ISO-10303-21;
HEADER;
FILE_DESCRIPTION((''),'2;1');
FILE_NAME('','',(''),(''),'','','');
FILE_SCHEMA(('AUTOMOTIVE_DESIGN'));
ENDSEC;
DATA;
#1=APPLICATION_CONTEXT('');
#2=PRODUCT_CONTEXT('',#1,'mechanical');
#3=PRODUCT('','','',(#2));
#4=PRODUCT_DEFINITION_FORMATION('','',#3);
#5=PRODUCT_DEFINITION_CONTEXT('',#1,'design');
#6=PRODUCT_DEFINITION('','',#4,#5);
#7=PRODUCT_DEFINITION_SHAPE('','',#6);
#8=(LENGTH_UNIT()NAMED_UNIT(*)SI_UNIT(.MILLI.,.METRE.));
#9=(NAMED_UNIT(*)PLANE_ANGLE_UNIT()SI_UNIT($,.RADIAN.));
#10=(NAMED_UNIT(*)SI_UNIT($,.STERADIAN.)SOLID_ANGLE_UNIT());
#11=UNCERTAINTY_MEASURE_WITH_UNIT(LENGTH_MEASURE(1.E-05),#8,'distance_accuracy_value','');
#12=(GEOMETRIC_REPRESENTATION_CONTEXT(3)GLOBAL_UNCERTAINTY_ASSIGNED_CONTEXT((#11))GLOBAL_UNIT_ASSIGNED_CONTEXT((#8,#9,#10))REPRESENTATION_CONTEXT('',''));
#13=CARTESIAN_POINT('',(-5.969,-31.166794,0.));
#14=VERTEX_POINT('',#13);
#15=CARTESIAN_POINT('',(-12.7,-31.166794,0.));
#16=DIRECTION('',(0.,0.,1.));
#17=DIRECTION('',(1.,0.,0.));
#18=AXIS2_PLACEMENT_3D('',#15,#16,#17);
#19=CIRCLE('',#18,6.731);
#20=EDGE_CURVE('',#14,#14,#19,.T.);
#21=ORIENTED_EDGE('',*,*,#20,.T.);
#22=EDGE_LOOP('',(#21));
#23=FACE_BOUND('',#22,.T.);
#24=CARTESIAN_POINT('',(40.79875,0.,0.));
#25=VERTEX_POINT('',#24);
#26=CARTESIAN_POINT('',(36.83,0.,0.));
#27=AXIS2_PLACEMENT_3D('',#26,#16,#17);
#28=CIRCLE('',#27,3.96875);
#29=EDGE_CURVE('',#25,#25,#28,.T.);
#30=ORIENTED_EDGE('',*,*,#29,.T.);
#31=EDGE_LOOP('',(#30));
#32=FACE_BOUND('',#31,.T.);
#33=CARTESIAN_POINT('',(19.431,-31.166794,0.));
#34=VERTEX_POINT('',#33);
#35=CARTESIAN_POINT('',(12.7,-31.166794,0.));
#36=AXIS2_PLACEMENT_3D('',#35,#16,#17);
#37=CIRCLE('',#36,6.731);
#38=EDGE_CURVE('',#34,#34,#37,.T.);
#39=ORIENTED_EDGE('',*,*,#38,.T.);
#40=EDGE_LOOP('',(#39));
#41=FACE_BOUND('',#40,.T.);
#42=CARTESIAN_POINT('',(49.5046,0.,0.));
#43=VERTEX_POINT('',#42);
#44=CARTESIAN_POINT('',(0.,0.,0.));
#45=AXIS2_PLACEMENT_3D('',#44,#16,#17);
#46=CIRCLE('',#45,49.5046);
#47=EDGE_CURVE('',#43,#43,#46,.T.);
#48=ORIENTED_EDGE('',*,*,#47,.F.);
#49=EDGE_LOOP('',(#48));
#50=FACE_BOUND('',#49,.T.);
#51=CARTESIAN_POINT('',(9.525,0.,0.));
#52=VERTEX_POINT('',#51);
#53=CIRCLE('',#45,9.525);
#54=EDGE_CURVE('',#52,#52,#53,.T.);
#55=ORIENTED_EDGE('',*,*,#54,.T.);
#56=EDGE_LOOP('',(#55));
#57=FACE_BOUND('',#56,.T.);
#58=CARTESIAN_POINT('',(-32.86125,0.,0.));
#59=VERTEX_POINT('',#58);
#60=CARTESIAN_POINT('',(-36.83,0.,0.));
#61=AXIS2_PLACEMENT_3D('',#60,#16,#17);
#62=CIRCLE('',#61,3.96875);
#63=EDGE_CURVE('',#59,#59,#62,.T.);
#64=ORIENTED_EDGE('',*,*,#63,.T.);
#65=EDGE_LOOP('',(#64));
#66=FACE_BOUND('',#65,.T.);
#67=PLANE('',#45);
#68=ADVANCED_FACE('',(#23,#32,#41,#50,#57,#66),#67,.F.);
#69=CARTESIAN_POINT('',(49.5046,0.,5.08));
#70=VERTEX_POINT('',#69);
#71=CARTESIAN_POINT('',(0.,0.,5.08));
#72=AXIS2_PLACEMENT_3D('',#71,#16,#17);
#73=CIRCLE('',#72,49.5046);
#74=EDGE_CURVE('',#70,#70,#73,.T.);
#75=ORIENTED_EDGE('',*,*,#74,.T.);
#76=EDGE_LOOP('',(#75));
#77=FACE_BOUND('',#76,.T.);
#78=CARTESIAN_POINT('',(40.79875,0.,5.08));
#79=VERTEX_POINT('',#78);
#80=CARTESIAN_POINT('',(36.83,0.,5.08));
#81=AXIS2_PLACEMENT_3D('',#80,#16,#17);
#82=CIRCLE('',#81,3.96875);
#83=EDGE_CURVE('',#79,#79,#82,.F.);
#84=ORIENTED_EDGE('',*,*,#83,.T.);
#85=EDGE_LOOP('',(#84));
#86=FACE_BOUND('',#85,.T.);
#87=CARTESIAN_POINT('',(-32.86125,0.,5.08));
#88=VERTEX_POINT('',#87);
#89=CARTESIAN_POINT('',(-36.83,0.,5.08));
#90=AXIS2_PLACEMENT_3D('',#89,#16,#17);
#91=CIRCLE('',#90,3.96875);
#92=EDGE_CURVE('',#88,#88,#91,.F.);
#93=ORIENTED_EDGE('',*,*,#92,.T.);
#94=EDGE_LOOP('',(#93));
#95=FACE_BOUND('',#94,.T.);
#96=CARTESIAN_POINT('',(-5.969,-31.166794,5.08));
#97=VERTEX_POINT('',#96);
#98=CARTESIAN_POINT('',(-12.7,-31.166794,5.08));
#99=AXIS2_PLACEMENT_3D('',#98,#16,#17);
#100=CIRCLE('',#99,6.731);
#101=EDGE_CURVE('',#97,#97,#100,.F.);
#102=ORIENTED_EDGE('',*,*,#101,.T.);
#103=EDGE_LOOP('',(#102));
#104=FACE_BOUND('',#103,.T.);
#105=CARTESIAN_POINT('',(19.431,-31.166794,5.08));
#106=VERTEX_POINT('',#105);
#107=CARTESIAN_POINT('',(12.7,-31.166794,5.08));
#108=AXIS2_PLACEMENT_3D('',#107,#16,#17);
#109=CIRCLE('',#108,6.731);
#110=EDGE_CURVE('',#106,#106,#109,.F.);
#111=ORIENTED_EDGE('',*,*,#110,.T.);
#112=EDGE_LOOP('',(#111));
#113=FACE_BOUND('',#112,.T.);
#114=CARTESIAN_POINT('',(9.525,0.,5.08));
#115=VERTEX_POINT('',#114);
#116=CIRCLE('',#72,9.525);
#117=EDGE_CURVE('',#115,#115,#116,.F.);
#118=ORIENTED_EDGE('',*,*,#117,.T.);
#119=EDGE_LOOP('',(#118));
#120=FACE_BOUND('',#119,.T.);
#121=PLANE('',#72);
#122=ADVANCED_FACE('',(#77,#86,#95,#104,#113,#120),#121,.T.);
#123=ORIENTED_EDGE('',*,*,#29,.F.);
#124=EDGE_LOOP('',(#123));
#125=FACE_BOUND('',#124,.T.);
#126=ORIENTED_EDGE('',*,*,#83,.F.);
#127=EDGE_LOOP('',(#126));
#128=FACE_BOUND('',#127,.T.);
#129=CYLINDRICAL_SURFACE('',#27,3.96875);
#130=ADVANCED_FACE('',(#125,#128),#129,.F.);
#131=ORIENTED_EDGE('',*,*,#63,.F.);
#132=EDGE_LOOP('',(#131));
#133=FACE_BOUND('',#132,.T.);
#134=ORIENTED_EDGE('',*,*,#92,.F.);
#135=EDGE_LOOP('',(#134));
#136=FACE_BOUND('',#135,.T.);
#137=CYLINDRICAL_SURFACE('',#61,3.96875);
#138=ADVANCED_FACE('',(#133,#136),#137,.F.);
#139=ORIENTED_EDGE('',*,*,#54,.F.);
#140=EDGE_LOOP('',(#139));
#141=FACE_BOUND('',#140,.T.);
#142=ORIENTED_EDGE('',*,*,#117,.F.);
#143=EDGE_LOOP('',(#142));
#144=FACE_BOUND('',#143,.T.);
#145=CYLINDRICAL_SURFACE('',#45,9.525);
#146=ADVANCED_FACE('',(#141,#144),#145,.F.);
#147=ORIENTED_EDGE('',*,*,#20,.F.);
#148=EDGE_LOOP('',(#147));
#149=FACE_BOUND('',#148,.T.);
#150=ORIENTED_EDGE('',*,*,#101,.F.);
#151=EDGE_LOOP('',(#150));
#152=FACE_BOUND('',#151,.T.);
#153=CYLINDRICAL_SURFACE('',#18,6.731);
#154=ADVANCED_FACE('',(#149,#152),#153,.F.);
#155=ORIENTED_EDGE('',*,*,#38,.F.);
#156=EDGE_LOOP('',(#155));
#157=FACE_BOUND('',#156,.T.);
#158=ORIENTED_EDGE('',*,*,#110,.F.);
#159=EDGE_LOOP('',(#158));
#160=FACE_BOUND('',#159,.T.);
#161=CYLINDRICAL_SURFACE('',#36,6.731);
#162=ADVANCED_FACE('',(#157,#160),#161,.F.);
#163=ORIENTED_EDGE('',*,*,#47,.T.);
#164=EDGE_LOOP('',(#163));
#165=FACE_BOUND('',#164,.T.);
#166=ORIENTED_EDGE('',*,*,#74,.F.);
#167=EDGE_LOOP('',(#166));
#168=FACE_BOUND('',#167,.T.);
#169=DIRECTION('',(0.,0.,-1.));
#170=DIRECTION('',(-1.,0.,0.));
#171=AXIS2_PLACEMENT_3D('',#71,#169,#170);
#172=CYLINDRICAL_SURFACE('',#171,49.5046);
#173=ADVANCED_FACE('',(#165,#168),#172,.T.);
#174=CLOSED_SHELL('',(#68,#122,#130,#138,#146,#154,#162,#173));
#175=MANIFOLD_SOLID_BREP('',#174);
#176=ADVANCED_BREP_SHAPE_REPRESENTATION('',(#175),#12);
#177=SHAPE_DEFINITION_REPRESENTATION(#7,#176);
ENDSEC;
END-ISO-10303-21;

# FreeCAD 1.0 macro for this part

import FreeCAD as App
import Part
import Sketcher

V = App.Vector
Q = App.Units.Quantity

doc = App.newDocument("Part")
body = doc.addObject("PartDesign::Body", "Body")

sketch1 = doc.addObject("Sketcher::SketchObject", "Sketch")
body.addObject(sketch1)
sketch1.AttachmentSupport = (doc.XY_Plane, [""])
sketch1.MapMode = "FlatFace"
sketch1.addGeometry(Part.Circle(V(0, 0, 0), V(0, 0, 1), 49.5046), False)
sketch1.addConstraint([
    Sketcher.Constraint("Coincident", 0, 3, -1, 1),
    Sketcher.Constraint("Diameter", 0, Q("3.898 in")),
])
pad1 = doc.addObject("PartDesign::Pad", "Pad")
body.addObject(pad1)
pad1.Profile = sketch1
pad1.Length = Q("0.2 in")

sketch2 = doc.addObject("Sketcher::SketchObject", "Sketch001")
body.addObject(sketch2)
sketch2.AttachmentSupport = (doc.XY_Plane, [""])
sketch2.MapMode = "FlatFace"
sketch2.AttachmentOffset = App.Placement(V(0, 0, 0.2 * 25.4), App.Rotation())
sketch2.addGeometry(Part.Circle(V(0, 0, 0), V(0, 0, 1), 47.625), False)
sketch2.addConstraint([
    Sketcher.Constraint("Coincident", 0, 3, -1, 1),
    Sketcher.Constraint("Diameter", 0, Q("3.75 in")),
])
pad2 = doc.addObject("PartDesign::Pad", "Pad001")
body.addObject(pad2)
pad2.Profile = sketch2
pad2.Length = Q("0.125 in")

sketch3 = doc.addObject("Sketcher::SketchObject", "Sketch002")
body.addObject(sketch3)
sketch3.AttachmentSupport = (doc.XY_Plane, [""])
sketch3.MapMode = "FlatFace"
sketch3.AttachmentOffset = App.Placement(V(0, 0, 0.325 * 25.4), App.Rotation())
sketch3.addGeometry([
    Part.Circle(V(-12.7, -31.166794, 0), V(0, 0, 1), 6.731),
    Part.Circle(V(12.7, -31.166794, 0), V(0, 0, 1), 6.731),
    Part.Circle(V(-36.83, 0, 0), V(0, 0, 1), 3.96875),
    Part.Circle(V(36.83, 0, 0), V(0, 0, 1), 3.96875),
    Part.Circle(V(0, 0, 0), V(0, 0, 1), 9.525),
], False)
sketch3.addConstraint([
    Sketcher.Constraint("Coincident", 4, 3, -1, 1),
    Sketcher.Constraint("Equal", 0, 1),
    Sketcher.Constraint("Equal", 2, 3),
    Sketcher.Constraint("Symmetric", 2, 3, 3, 3, -1, 1),
    Sketcher.Constraint("Symmetric", 0, 3, 1, 3, -2),
    Sketcher.Constraint("PointOnObject", 2, 3, -1),
    Sketcher.Constraint("Diameter", 0, Q("0.53 in")),
    Sketcher.Constraint("Diameter", 4, Q("0.75 in")),
    Sketcher.Constraint("Diameter", 2, Q("0.3125 in")),
    Sketcher.Constraint("DistanceX", 0, 3, 1, 3, Q("1 in")),
    Sketcher.Constraint("DistanceX", 2, 3, 3, 3, Q("2.9 in")),
    Sketcher.Constraint("DistanceY", 0, 3, -1, 1, Q("31.166794 mm")),
])
pocket1 = doc.addObject("PartDesign::Pocket", "Pocket")
body.addObject(pocket1)
pocket1.Profile = sketch3
pocket1.Type = "ThroughAll"

sketch4 = doc.addObject("Sketcher::SketchObject", "Sketch003")
body.addObject(sketch4)
sketch4.AttachmentSupport = (doc.XY_Plane, [""])
sketch4.MapMode = "FlatFace"
sketch4.AttachmentOffset = App.Placement(V(0, 0, 0.325 * 25.4), App.Rotation())
sketch4.addGeometry(Part.Circle(V(0, 0, 0), V(0, 0, 1), 55.708104), False)
sketch4.addConstraint([
    Sketcher.Constraint("Coincident", 0, 3, -1, 1),
    Sketcher.Constraint("Diameter", 0, Q("111.416208 mm")),
])
pocket2 = doc.addObject("PartDesign::Pocket", "Pocket001")
body.addObject(pocket2)
pocket2.Profile = sketch4
pocket2.Length = Q("0.125 in")

doc.recompute()
